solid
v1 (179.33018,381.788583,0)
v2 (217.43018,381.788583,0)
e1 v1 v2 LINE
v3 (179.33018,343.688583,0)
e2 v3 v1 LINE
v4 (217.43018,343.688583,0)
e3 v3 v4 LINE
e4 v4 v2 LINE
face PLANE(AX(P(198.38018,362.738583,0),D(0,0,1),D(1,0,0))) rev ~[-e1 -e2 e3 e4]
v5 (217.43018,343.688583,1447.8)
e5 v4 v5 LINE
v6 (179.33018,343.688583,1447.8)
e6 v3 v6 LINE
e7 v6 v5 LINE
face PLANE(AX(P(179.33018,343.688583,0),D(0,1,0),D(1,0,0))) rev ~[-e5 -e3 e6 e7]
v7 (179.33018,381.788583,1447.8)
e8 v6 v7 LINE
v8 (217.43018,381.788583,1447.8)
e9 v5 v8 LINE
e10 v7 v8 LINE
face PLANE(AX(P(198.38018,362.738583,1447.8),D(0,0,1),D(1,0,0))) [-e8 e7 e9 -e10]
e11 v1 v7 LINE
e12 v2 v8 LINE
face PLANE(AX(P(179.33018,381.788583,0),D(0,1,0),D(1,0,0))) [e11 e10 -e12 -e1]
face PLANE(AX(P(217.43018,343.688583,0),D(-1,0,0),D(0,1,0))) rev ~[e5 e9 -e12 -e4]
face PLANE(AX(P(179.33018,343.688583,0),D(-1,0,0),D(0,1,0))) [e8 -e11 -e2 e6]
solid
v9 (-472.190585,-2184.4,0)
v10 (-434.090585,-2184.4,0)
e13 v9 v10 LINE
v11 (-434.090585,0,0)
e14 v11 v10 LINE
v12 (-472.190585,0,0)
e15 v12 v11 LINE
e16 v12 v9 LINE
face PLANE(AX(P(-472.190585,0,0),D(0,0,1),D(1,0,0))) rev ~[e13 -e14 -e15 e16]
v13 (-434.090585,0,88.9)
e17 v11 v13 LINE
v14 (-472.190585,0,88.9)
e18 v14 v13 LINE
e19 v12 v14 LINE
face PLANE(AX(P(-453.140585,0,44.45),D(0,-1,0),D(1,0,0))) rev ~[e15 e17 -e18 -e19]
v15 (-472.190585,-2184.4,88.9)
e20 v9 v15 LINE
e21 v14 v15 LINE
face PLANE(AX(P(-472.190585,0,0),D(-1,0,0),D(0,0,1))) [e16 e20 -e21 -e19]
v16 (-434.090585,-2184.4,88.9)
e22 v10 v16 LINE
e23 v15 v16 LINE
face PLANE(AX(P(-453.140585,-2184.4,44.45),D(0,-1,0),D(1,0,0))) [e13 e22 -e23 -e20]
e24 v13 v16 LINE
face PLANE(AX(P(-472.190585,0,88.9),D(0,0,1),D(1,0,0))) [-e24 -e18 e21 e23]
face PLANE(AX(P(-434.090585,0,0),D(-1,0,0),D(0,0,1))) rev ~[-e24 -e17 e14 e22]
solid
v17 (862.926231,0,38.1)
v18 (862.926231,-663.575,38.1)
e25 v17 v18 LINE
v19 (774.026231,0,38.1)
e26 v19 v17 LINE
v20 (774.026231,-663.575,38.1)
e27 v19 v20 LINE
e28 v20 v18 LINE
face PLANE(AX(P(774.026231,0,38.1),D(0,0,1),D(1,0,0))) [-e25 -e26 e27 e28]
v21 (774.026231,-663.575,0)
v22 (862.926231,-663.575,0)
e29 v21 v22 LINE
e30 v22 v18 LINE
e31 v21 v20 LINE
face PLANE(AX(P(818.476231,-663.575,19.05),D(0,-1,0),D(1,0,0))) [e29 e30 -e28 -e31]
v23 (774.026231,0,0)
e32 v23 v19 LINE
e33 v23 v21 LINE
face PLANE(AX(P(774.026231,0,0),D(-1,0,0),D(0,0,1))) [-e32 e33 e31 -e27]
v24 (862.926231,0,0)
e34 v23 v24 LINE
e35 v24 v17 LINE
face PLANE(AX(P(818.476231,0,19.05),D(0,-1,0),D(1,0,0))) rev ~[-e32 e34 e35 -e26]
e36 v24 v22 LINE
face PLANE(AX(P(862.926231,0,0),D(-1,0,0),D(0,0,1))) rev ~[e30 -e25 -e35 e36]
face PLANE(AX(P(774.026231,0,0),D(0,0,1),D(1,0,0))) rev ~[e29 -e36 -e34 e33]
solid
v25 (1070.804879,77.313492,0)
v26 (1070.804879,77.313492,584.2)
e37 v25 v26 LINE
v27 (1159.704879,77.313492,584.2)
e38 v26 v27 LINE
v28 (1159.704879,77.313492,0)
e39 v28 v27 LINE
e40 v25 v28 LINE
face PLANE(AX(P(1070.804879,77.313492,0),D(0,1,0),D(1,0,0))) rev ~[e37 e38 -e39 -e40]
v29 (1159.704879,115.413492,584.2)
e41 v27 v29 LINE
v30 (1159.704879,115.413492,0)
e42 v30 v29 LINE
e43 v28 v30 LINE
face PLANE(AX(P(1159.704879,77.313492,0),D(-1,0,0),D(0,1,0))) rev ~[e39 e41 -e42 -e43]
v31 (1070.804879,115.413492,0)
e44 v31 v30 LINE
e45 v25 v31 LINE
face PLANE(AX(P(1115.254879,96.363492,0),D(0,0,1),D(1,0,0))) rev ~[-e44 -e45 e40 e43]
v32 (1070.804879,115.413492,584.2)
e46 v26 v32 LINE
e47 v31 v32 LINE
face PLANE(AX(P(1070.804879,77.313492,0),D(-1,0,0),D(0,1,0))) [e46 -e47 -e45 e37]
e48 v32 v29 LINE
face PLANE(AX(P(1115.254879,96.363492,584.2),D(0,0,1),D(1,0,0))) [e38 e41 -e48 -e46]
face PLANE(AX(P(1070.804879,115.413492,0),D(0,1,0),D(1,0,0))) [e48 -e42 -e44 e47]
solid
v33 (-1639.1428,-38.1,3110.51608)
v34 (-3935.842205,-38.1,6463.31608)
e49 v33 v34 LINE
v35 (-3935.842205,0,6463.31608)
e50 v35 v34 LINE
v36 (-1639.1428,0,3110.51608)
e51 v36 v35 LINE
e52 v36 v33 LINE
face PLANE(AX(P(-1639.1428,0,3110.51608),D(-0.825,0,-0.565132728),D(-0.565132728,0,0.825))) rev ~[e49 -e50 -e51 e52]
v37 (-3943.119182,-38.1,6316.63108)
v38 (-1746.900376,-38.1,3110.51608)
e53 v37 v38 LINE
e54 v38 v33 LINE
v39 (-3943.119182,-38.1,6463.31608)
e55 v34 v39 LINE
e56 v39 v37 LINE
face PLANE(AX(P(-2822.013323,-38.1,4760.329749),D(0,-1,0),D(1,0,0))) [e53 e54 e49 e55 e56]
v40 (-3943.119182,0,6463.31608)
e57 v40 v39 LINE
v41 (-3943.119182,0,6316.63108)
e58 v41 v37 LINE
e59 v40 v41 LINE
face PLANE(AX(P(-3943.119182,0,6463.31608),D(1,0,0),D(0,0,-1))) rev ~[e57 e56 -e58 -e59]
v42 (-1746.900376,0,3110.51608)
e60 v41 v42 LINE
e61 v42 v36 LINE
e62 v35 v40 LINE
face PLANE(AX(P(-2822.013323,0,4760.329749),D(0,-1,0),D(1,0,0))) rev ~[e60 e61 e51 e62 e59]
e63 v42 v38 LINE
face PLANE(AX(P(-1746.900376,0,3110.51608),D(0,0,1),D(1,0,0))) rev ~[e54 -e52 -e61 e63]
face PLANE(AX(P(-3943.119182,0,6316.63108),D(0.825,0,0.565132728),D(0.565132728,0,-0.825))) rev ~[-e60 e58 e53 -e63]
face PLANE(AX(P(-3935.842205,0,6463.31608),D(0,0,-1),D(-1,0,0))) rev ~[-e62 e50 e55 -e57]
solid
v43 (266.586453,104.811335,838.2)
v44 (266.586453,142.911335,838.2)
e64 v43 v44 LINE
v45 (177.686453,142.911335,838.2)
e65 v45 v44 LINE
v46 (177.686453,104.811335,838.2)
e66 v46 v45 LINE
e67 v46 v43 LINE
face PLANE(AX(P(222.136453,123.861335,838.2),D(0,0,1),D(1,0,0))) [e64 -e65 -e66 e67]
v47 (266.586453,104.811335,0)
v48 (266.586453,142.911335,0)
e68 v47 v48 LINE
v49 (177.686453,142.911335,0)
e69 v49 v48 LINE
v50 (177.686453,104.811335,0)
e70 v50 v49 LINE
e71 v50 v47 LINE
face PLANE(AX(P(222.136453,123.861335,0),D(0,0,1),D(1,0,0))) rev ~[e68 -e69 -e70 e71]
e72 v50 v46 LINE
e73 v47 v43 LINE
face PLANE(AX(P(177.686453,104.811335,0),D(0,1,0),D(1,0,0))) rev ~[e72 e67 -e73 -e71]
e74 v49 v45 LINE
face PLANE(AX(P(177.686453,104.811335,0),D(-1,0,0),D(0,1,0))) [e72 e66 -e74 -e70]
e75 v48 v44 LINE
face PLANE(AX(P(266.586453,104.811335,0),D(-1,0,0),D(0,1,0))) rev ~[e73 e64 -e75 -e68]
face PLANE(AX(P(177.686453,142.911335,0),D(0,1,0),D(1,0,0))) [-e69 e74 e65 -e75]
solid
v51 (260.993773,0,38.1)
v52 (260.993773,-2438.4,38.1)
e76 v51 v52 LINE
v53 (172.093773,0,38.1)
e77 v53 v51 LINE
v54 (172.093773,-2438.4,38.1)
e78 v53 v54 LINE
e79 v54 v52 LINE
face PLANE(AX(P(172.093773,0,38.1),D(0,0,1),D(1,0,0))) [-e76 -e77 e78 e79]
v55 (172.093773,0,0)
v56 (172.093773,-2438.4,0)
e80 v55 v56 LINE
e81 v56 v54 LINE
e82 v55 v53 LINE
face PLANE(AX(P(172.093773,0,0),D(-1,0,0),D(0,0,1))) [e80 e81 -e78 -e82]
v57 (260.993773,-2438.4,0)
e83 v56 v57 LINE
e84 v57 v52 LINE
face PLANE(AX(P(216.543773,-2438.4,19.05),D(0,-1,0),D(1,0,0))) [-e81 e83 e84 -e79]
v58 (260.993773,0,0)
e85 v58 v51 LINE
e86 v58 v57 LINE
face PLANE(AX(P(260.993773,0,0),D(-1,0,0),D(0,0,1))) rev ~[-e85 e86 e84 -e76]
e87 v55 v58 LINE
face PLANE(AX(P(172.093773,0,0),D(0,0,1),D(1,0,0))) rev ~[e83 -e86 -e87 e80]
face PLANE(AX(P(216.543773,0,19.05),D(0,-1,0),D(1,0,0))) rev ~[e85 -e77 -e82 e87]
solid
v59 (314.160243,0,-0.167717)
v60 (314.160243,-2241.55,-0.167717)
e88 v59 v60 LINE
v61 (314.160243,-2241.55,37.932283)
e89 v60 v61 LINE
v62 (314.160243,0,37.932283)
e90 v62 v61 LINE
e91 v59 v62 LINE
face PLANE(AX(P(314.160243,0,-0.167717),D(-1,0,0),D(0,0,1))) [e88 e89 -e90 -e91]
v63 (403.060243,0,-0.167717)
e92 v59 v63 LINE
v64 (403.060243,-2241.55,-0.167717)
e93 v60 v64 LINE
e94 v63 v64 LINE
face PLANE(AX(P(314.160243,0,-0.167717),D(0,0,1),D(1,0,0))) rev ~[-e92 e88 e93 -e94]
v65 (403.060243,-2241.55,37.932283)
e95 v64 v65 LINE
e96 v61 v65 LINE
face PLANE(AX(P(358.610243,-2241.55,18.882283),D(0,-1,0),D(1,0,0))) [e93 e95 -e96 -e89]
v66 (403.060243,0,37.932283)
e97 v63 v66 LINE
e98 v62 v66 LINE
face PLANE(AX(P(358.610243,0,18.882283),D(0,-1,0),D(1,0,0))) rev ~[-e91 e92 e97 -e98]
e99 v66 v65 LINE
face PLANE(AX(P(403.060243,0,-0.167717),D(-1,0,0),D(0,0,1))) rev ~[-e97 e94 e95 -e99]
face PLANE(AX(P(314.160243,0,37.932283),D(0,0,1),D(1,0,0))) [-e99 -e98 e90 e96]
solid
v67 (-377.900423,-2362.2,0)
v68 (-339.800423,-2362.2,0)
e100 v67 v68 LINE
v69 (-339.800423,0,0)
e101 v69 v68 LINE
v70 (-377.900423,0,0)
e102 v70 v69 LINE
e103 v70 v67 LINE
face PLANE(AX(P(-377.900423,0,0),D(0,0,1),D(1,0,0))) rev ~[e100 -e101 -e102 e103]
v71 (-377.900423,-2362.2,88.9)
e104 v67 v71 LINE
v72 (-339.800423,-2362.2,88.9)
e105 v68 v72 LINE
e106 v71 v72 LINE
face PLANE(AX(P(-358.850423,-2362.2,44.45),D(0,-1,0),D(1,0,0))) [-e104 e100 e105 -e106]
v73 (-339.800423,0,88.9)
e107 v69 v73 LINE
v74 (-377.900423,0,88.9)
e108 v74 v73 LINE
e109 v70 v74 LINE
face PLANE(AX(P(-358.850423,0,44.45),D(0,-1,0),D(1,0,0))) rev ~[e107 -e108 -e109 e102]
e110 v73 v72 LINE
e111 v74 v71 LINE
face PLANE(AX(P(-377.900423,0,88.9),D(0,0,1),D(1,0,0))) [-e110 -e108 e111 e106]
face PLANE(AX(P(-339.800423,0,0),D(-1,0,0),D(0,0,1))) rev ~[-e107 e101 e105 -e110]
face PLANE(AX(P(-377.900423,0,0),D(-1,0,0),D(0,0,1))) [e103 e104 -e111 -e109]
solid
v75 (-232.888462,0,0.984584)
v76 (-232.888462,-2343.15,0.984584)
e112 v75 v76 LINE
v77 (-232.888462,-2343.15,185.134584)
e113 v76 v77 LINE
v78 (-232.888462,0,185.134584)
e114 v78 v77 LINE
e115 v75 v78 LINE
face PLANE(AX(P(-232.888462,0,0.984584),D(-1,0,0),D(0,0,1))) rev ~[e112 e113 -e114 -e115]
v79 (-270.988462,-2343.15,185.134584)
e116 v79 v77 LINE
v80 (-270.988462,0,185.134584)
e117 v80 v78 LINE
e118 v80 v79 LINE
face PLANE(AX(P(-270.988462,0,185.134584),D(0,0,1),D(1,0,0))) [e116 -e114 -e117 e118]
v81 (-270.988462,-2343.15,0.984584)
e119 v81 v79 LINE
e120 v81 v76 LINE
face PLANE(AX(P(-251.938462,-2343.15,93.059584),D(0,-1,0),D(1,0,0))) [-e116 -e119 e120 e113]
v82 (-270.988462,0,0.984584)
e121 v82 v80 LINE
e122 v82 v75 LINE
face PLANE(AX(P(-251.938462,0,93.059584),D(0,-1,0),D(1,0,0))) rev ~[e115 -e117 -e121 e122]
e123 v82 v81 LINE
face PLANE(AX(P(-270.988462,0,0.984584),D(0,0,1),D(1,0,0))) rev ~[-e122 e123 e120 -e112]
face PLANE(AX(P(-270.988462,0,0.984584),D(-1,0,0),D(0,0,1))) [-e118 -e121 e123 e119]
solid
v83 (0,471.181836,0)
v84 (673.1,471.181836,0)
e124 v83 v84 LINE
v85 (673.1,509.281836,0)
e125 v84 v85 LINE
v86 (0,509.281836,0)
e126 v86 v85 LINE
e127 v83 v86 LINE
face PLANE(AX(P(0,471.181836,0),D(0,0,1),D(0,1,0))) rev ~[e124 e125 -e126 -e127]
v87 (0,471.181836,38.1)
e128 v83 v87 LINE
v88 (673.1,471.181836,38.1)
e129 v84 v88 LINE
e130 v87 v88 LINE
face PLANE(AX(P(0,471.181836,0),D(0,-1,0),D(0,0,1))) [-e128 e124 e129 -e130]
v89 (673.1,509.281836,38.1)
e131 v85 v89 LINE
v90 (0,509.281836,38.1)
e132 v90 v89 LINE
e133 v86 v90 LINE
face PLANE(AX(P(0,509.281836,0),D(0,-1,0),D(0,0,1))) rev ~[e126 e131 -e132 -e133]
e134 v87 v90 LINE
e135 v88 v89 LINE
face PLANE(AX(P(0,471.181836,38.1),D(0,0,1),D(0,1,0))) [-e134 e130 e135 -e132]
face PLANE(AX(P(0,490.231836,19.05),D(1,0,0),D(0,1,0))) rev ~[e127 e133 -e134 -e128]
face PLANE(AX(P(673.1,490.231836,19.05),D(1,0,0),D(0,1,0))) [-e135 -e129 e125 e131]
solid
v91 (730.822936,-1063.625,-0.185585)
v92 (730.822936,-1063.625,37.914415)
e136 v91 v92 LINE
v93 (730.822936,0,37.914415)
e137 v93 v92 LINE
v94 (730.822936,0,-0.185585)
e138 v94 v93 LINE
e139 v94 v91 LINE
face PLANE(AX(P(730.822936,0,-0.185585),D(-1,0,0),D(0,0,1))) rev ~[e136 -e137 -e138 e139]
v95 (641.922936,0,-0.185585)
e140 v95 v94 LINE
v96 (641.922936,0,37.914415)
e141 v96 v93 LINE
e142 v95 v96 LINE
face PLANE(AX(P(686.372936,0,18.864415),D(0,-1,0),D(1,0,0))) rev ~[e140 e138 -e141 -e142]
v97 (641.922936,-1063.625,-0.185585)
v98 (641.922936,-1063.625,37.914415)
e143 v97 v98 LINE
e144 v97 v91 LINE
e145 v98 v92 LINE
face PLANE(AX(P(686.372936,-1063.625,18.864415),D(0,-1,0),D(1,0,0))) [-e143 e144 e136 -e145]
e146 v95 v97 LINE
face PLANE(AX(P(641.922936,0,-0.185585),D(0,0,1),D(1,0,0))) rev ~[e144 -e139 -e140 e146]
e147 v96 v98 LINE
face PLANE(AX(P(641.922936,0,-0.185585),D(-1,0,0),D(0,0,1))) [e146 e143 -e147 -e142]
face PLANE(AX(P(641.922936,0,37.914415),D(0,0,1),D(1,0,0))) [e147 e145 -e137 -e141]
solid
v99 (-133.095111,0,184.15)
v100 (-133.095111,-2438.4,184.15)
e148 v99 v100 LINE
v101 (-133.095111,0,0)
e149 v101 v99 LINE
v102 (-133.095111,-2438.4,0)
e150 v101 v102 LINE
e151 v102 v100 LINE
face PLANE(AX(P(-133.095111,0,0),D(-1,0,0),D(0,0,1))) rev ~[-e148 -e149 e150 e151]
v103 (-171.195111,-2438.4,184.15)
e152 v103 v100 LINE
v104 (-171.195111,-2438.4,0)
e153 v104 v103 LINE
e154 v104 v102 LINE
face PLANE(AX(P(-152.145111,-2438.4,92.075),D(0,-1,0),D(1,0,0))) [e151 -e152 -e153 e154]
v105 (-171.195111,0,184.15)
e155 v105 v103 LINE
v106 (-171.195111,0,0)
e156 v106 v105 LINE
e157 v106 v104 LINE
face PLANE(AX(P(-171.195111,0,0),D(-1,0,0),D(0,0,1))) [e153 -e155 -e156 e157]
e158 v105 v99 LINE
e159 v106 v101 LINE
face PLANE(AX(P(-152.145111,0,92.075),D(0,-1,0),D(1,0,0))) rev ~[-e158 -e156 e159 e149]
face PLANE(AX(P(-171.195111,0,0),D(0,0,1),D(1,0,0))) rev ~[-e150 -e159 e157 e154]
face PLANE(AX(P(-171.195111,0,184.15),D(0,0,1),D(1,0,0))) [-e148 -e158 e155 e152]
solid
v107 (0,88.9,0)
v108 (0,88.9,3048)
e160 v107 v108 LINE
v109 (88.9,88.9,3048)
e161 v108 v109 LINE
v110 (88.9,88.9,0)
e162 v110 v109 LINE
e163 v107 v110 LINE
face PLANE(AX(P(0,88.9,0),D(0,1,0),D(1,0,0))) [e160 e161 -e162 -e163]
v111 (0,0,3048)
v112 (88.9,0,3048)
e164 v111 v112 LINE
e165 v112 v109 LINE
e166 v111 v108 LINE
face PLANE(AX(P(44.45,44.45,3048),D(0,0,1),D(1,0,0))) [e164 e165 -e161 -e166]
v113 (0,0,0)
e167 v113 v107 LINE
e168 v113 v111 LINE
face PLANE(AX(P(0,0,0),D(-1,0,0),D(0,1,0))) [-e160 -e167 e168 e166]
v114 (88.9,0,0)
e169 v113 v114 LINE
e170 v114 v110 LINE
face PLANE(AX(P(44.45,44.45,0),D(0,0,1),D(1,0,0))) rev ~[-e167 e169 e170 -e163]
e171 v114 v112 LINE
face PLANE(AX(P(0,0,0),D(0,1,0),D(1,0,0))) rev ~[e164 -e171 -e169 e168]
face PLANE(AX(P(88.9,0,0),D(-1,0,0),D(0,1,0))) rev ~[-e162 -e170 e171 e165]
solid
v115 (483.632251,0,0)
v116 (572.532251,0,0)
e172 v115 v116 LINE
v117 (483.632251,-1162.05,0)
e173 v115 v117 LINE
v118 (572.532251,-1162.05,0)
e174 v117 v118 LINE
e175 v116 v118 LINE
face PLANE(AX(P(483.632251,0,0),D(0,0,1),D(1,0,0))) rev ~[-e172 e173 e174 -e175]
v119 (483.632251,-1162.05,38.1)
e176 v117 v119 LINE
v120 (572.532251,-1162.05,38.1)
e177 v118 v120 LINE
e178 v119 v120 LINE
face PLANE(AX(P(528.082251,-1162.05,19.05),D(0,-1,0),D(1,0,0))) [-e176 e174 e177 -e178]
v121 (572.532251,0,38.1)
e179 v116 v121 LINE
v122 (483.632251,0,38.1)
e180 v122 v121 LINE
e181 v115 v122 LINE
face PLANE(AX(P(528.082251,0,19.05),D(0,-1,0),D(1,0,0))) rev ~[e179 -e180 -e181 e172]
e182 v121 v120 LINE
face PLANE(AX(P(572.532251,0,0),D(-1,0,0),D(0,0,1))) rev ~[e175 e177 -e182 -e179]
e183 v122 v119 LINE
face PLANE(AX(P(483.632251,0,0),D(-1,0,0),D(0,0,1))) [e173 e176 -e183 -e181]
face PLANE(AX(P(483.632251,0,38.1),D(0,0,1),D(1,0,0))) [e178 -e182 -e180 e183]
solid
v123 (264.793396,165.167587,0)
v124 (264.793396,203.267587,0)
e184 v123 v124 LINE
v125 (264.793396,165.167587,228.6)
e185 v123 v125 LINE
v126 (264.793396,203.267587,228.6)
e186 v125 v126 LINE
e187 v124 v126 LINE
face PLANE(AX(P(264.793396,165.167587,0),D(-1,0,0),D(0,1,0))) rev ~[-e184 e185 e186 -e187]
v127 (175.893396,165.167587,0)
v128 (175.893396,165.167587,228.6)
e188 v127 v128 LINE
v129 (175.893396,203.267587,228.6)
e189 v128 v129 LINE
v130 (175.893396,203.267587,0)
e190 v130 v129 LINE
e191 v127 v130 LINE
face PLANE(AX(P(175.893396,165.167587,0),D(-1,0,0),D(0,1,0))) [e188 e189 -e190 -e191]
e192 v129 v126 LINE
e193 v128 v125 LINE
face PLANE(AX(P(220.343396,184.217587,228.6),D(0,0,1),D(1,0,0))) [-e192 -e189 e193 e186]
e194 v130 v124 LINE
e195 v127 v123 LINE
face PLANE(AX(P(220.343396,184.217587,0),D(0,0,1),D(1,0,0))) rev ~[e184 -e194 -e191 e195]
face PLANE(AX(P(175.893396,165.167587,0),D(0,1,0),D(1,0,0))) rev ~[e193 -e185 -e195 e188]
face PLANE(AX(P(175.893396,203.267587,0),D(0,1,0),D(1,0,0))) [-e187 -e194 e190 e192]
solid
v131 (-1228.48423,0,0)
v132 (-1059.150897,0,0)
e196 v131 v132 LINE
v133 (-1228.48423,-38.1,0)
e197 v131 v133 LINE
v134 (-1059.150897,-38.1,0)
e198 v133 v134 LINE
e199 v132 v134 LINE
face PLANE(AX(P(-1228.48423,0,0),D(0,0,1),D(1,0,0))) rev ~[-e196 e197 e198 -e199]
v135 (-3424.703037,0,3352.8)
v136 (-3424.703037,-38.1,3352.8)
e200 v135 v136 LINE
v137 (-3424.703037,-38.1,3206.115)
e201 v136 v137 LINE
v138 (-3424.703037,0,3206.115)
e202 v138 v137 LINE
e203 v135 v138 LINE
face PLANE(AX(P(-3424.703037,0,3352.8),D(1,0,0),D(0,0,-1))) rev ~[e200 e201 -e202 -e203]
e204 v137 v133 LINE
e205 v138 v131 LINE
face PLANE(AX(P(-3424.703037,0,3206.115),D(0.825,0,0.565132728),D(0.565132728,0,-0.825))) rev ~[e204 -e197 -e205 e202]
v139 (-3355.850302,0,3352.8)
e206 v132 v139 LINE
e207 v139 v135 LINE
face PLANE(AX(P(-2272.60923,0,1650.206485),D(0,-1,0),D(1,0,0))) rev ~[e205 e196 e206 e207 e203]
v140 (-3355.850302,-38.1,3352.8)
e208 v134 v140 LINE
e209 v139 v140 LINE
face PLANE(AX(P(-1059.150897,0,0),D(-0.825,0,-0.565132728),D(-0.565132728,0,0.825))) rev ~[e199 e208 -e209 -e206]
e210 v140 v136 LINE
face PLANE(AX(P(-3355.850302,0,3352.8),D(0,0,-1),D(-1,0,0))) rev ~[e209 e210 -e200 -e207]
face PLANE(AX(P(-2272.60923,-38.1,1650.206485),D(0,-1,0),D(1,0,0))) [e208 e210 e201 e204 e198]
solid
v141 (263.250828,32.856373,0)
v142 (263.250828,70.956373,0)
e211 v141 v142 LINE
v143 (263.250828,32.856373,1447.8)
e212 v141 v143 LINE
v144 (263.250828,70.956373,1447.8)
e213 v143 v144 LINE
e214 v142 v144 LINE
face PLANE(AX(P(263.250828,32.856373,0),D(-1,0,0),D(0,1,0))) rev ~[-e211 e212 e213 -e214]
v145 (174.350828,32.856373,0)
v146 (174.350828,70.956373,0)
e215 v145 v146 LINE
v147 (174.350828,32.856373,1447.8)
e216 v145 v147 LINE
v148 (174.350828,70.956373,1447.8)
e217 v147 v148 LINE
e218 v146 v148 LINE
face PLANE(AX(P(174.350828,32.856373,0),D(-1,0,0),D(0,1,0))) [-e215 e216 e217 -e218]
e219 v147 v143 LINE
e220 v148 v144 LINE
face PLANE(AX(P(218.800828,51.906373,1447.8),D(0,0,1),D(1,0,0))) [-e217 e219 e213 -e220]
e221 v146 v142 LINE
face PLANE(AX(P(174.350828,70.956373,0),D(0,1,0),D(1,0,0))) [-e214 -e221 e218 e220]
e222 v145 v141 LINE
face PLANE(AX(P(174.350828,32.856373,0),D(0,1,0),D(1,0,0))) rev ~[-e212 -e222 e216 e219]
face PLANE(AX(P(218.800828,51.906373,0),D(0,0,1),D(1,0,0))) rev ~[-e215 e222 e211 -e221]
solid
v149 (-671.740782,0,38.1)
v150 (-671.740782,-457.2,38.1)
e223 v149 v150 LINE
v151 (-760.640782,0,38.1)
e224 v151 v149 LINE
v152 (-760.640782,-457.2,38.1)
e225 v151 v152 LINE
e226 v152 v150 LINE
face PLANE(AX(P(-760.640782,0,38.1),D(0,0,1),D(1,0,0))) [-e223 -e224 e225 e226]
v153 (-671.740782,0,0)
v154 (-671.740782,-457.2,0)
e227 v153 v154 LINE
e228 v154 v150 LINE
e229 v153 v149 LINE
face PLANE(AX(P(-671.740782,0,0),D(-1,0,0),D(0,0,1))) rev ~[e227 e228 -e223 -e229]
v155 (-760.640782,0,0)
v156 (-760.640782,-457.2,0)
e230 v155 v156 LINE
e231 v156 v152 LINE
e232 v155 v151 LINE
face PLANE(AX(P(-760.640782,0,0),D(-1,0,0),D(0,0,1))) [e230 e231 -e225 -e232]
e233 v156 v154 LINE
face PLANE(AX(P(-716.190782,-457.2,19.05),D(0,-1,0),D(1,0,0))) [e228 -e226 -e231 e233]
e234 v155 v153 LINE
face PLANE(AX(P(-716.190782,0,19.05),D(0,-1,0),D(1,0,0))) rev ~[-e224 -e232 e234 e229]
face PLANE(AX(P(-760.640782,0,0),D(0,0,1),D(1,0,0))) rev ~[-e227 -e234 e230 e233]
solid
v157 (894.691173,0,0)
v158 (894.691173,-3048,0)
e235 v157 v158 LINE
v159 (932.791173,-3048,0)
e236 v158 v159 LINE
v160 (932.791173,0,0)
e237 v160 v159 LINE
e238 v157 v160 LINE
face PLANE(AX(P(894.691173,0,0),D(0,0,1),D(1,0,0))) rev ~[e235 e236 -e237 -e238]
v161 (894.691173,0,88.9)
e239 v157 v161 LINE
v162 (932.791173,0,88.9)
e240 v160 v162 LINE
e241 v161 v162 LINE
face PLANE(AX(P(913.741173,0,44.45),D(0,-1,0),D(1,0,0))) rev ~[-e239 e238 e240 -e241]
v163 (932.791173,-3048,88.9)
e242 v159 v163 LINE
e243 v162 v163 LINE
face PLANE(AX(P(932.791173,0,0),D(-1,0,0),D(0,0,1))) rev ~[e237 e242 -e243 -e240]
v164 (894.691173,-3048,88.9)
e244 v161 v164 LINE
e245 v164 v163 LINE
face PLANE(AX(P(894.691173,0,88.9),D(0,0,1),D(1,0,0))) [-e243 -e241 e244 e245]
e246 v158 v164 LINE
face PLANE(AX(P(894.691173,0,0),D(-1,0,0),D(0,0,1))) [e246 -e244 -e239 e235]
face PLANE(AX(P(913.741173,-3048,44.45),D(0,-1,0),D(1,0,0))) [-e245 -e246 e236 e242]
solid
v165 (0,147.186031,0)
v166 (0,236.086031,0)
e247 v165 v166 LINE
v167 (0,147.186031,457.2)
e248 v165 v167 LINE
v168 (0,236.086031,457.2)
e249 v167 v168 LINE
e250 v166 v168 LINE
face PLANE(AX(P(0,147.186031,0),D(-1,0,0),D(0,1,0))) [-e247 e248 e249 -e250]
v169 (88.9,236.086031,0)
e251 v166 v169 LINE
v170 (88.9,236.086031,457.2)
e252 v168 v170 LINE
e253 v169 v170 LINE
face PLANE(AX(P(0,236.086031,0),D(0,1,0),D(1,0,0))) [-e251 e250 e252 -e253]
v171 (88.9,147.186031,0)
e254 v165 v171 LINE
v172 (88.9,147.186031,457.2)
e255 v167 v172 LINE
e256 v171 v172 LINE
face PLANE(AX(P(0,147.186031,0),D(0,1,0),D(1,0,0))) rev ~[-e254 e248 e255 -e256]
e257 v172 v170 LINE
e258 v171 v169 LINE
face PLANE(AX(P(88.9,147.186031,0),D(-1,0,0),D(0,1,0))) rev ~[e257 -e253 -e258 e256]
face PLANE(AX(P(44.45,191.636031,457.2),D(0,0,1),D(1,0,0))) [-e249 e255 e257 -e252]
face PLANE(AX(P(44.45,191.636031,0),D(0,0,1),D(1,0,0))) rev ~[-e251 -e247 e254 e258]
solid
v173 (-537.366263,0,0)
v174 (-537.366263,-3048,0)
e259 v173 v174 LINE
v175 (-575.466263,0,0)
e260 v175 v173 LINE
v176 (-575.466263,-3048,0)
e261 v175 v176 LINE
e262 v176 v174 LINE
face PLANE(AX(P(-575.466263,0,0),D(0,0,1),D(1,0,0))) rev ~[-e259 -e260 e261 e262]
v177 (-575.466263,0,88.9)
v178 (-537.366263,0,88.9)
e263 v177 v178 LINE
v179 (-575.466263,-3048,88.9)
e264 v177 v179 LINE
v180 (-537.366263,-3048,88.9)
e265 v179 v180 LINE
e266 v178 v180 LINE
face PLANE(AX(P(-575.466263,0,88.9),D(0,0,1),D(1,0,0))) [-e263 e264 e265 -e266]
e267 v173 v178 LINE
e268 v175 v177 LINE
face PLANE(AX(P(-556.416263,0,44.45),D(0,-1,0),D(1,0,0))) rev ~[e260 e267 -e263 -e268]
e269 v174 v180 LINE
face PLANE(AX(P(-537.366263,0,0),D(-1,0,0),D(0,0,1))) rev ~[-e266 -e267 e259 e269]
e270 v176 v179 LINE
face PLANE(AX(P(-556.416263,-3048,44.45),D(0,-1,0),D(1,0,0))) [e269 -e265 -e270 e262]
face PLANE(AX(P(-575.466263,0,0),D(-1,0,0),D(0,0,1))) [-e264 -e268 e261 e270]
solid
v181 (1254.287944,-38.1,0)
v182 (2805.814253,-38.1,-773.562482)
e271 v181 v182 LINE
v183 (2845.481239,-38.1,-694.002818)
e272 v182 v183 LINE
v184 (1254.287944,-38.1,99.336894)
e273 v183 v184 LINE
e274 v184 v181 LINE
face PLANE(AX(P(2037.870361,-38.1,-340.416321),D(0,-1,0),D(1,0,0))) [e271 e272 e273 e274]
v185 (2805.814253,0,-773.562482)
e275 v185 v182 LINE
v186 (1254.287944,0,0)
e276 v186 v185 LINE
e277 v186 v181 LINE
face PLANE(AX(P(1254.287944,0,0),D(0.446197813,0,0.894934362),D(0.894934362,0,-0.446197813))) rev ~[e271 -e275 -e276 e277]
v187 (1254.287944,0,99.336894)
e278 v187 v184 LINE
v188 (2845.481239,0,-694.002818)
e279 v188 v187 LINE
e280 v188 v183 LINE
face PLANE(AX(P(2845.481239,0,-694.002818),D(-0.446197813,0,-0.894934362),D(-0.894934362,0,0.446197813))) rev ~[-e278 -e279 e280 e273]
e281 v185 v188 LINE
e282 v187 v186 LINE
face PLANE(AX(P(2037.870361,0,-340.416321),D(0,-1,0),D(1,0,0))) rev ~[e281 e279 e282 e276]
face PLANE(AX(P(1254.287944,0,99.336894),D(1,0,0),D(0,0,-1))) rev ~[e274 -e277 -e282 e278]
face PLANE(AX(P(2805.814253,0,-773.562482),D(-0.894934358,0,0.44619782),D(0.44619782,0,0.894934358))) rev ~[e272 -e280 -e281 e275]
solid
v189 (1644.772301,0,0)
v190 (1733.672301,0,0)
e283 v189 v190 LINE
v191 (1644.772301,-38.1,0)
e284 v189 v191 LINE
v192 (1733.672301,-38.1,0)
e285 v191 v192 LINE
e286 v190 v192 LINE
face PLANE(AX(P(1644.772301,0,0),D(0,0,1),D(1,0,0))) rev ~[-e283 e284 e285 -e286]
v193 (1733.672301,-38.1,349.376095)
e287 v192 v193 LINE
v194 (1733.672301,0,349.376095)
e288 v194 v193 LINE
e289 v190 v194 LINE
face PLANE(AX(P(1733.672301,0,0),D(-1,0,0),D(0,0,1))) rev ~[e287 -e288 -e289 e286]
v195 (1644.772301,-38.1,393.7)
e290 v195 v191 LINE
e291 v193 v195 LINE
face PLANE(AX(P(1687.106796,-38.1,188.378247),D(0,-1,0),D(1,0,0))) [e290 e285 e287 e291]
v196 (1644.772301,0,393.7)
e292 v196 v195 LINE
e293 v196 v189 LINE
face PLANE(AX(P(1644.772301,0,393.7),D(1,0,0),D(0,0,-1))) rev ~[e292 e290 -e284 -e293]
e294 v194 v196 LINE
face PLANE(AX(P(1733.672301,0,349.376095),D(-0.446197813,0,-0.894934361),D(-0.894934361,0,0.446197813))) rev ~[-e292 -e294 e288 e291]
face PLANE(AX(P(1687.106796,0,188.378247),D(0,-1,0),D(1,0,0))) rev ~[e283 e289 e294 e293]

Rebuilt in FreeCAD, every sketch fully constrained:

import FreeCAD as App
import Part
import Sketcher
from FreeCAD import Vector
Q = App.Units.Quantity


def add_polygon(sketch, points):
    """Adds a closed chain of lines whose ends are joined by coincident constraints."""
    first, n = sketch.GeometryCount, len(points)
    for a, b in zip(points, points[1:] + points[:1]):
        sketch.addGeometry(Part.LineSegment(App.Vector(*a, 0), App.Vector(*b, 0)), False)
    for i in range(n):
        sketch.addConstraint(Sketcher.Constraint("Coincident", first + i, 2, first + (i + 1) % n, 1))

doc = App.newDocument("Part")
body = doc.addObject("PartDesign::Body", "Body")

# Sketch on XY plane
sketch1 = body.newObject("Sketcher::SketchObject", "Sketch")
sketch1.AttachmentSupport = (doc.getObject("XY_Plane"), [""])
sketch1.MapMode = "FlatFace"
add_polygon(sketch1, [(0, 88.9), (0, 0), (88.9, 0), (88.9, 88.9)])  # lines 0-3
sketch1.addConstraint(Sketcher.Constraint("Vertical", 0))
sketch1.addConstraint(Sketcher.Constraint("Horizontal", 1))
sketch1.addConstraint(Sketcher.Constraint("Vertical", 2))
sketch1.addConstraint(Sketcher.Constraint("Horizontal", 3))
sketch1.addConstraint(Sketcher.Constraint("Coincident", 0, 2, -1, 1))
sketch1.addConstraint(Sketcher.Constraint("Equal", 3, 0))
sketch1.addConstraint(Sketcher.Constraint("DistanceX", 1, 1, 1, 2, Q("3.5 in")))
pad1 = body.newObject("PartDesign::Pad", "Pad")
pad1.Profile = sketch1
pad1.Length = Q("120 in")
body2 = doc.addObject("PartDesign::Body", "Body001")

# Sketch on XZ plane
sketch2 = body2.newObject("Sketcher::SketchObject", "Sketch001")
sketch2.AttachmentSupport = (doc.getObject("XZ_Plane001"), [""])
sketch2.MapMode = "FlatFace"
add_polygon(sketch2, [(-171.195111, 184.15), (-171.195111, 0), (-133.095111, 0), (-133.095111, 184.15)])  # lines 0-3
sketch2.addConstraint(Sketcher.Constraint("Vertical", 0))
sketch2.addConstraint(Sketcher.Constraint("Horizontal", 1))
sketch2.addConstraint(Sketcher.Constraint("Vertical", 2))
sketch2.addConstraint(Sketcher.Constraint("Horizontal", 3))
sketch2.addConstraint(Sketcher.Constraint("PointOnObject", 0, 2, -1))
sketch2.addConstraint(Sketcher.Constraint("DistanceX", 1, 1, 1, 2, Q("1.5 in")))
sketch2.addConstraint(Sketcher.Constraint("DistanceY", 0, 2, 0, 1, Q("7.25 in")))
sketch2.addConstraint(Sketcher.Constraint("DistanceX", 0, 2, -1, 1, 171.195111))
pad2 = body2.newObject("PartDesign::Pad", "Pad001")
pad2.Profile = sketch2
pad2.Length = Q("96 in")
body3 = doc.addObject("PartDesign::Body", "Body002")

# Sketch on XZ plane
sketch3 = body3.newObject("Sketcher::SketchObject", "Sketch002")
sketch3.AttachmentSupport = (doc.getObject("XZ_Plane002"), [""])
sketch3.MapMode = "FlatFace"
add_polygon(sketch3, [(-270.988462, 185.134584), (-270.988462, 0.984584), (-232.888462, 0.984584), (-232.888462, 185.134584)])  # lines 0-3
sketch3.addConstraint(Sketcher.Constraint("Vertical", 0))
sketch3.addConstraint(Sketcher.Constraint("Horizontal", 1))
sketch3.addConstraint(Sketcher.Constraint("Vertical", 2))
sketch3.addConstraint(Sketcher.Constraint("Horizontal", 3))
sketch3.addConstraint(Sketcher.Constraint("DistanceX", 1, 1, 1, 2, Q("1.5 in")))
sketch3.addConstraint(Sketcher.Constraint("DistanceY", 0, 2, 0, 1, Q("7.25 in")))
sketch3.addConstraint(Sketcher.Constraint("DistanceX", 1, 2, -1, 1, 232.888462))
sketch3.addConstraint(Sketcher.Constraint("DistanceY", -1, 1, 0, 2, 0.984584))
pad3 = body3.newObject("PartDesign::Pad", "Pad002")
pad3.Profile = sketch3
pad3.Length = Q("92.25 in")
body4 = doc.addObject("PartDesign::Body", "Body003")

# Sketch on XZ plane
sketch4 = body4.newObject("Sketcher::SketchObject", "Sketch003")
sketch4.AttachmentSupport = (doc.getObject("XZ_Plane003"), [""])
sketch4.MapMode = "FlatFace"
add_polygon(sketch4, [(-377.900423, 88.9), (-377.900423, 0), (-339.800423, 0), (-339.800423, 88.9)])  # lines 0-3
sketch4.addConstraint(Sketcher.Constraint("Vertical", 0))
sketch4.addConstraint(Sketcher.Constraint("Horizontal", 1))
sketch4.addConstraint(Sketcher.Constraint("Vertical", 2))
sketch4.addConstraint(Sketcher.Constraint("Horizontal", 3))
sketch4.addConstraint(Sketcher.Constraint("PointOnObject", 0, 2, -1))
sketch4.addConstraint(Sketcher.Constraint("DistanceX", 1, 1, 1, 2, Q("1.5 in")))
sketch4.addConstraint(Sketcher.Constraint("DistanceY", 0, 2, 0, 1, Q("3.5 in")))
sketch4.addConstraint(Sketcher.Constraint("DistanceX", 0, 2, -1, 1, 377.900423))
pad4 = body4.newObject("PartDesign::Pad", "Pad003")
pad4.Profile = sketch4
pad4.Length = Q("93 in")
body5 = doc.addObject("PartDesign::Body", "Body004")

# Sketch on XZ plane
sketch5 = body5.newObject("Sketcher::SketchObject", "Sketch004")
sketch5.AttachmentSupport = (doc.getObject("XZ_Plane004"), [""])
sketch5.MapMode = "FlatFace"
add_polygon(sketch5, [(-472.190585, 88.9), (-472.190585, 0), (-434.090585, 0), (-434.090585, 88.9)])  # lines 0-3
sketch5.addConstraint(Sketcher.Constraint("Vertical", 0))
sketch5.addConstraint(Sketcher.Constraint("Horizontal", 1))
sketch5.addConstraint(Sketcher.Constraint("Vertical", 2))
sketch5.addConstraint(Sketcher.Constraint("Horizontal", 3))
sketch5.addConstraint(Sketcher.Constraint("PointOnObject", 0, 2, -1))
sketch5.addConstraint(Sketcher.Constraint("DistanceX", 1, 1, 1, 2, Q("1.5 in")))
sketch5.addConstraint(Sketcher.Constraint("DistanceY", 0, 2, 0, 1, Q("3.5 in")))
sketch5.addConstraint(Sketcher.Constraint("DistanceX", 0, 2, -1, 1, 472.190585))
pad5 = body5.newObject("PartDesign::Pad", "Pad004")
pad5.Profile = sketch5
pad5.Length = Q("86 in")
body6 = doc.addObject("PartDesign::Body", "Body005")

# Sketch on XZ plane
sketch6 = body6.newObject("Sketcher::SketchObject", "Sketch005")
sketch6.AttachmentSupport = (doc.getObject("XZ_Plane005"), [""])
sketch6.MapMode = "FlatFace"
add_polygon(sketch6, [(-575.466263, 88.9), (-575.466263, 0), (-537.366263, 0), (-537.366263, 88.9)])  # lines 0-3
sketch6.addConstraint(Sketcher.Constraint("Vertical", 0))
sketch6.addConstraint(Sketcher.Constraint("Horizontal", 1))
sketch6.addConstraint(Sketcher.Constraint("Vertical", 2))
sketch6.addConstraint(Sketcher.Constraint("Horizontal", 3))
sketch6.addConstraint(Sketcher.Constraint("PointOnObject", 0, 2, -1))
sketch6.addConstraint(Sketcher.Constraint("DistanceX", 1, 1, 1, 2, Q("1.5 in")))
sketch6.addConstraint(Sketcher.Constraint("DistanceY", 0, 2, 0, 1, Q("3.5 in")))
sketch6.addConstraint(Sketcher.Constraint("DistanceX", 0, 2, -1, 1, 575.466263))
pad6 = body6.newObject("PartDesign::Pad", "Pad005")
pad6.Profile = sketch6
pad6.Length = Q("120 in")
body7 = doc.addObject("PartDesign::Body", "Body006")

# Sketch on XZ plane
sketch7 = body7.newObject("Sketcher::SketchObject", "Sketch006")
sketch7.AttachmentSupport = (doc.getObject("XZ_Plane006"), [""])
sketch7.MapMode = "FlatFace"
add_polygon(sketch7, [(172.093773, 38.1), (172.093773, 0), (260.993773, 0), (260.993773, 38.1)])  # lines 0-3
sketch7.addConstraint(Sketcher.Constraint("Vertical", 0))
sketch7.addConstraint(Sketcher.Constraint("Horizontal", 1))
sketch7.addConstraint(Sketcher.Constraint("Vertical", 2))
sketch7.addConstraint(Sketcher.Constraint("Horizontal", 3))
sketch7.addConstraint(Sketcher.Constraint("PointOnObject", 0, 2, -1))
sketch7.addConstraint(Sketcher.Constraint("DistanceX", 1, 1, 1, 2, Q("3.5 in")))
sketch7.addConstraint(Sketcher.Constraint("DistanceY", 0, 2, 0, 1, Q("1.5 in")))
sketch7.addConstraint(Sketcher.Constraint("DistanceX", -1, 1, 0, 2, 172.093773))
pad7 = body7.newObject("PartDesign::Pad", "Pad006")
pad7.Profile = sketch7
pad7.Length = Q("96 in")
body8 = doc.addObject("PartDesign::Body", "Body007")

# Sketch on XY plane
sketch8 = body8.newObject("Sketcher::SketchObject", "Sketch007")
sketch8.AttachmentSupport = (doc.getObject("XY_Plane007"), [""])
sketch8.MapMode = "FlatFace"
add_polygon(sketch8, [(174.350828, 70.956373), (174.350828, 32.856373), (263.250828, 32.856373), (263.250828, 70.956373)])  # lines 0-3
sketch8.addConstraint(Sketcher.Constraint("Vertical", 0))
sketch8.addConstraint(Sketcher.Constraint("Horizontal", 1))
sketch8.addConstraint(Sketcher.Constraint("Vertical", 2))
sketch8.addConstraint(Sketcher.Constraint("Horizontal", 3))
sketch8.addConstraint(Sketcher.Constraint("DistanceX", 1, 1, 1, 2, Q("3.5 in")))
sketch8.addConstraint(Sketcher.Constraint("DistanceY", 0, 2, 0, 1, Q("1.5 in")))
sketch8.addConstraint(Sketcher.Constraint("DistanceX", -1, 1, 0, 2, 174.350828))
sketch8.addConstraint(Sketcher.Constraint("DistanceY", -1, 1, 0, 2, 32.856373))
pad8 = body8.newObject("PartDesign::Pad", "Pad007")
pad8.Profile = sketch8
pad8.Length = Q("57 in")
body9 = doc.addObject("PartDesign::Body", "Body008")

# Sketch on XZ plane
sketch9 = body9.newObject("Sketcher::SketchObject", "Sketch008")
sketch9.AttachmentSupport = (doc.getObject("XZ_Plane008"), [""])
sketch9.MapMode = "FlatFace"
add_polygon(sketch9, [(314.160243, 37.932283), (314.160243, -0.167717), (403.060243, -0.167717), (403.060243, 37.932283)])  # lines 0-3
sketch9.addConstraint(Sketcher.Constraint("Vertical", 0))
sketch9.addConstraint(Sketcher.Constraint("Horizontal", 1))
sketch9.addConstraint(Sketcher.Constraint("Vertical", 2))
sketch9.addConstraint(Sketcher.Constraint("Horizontal", 3))
sketch9.addConstraint(Sketcher.Constraint("DistanceX", 1, 1, 1, 2, Q("3.5 in")))
sketch9.addConstraint(Sketcher.Constraint("DistanceY", 0, 2, 0, 1, Q("1.5 in")))
sketch9.addConstraint(Sketcher.Constraint("DistanceX", -1, 1, 0, 2, 314.160243))
sketch9.addConstraint(Sketcher.Constraint("DistanceY", 0, 2, -1, 1, 0.167717))
pad9 = body9.newObject("PartDesign::Pad", "Pad008")
pad9.Profile = sketch9
pad9.Length = Q("88.25 in")
body10 = doc.addObject("PartDesign::Body", "Body009")

# Sketch on XZ plane
sketch10 = body10.newObject("Sketcher::SketchObject", "Sketch009")
sketch10.AttachmentSupport = (doc.getObject("XZ_Plane009"), [""])
sketch10.MapMode = "FlatFace"
add_polygon(sketch10, [(483.632251, 38.1), (483.632251, 0), (572.532251, 0), (572.532251, 38.1)])  # lines 0-3
sketch10.addConstraint(Sketcher.Constraint("Vertical", 0))
sketch10.addConstraint(Sketcher.Constraint("Horizontal", 1))
sketch10.addConstraint(Sketcher.Constraint("Vertical", 2))
sketch10.addConstraint(Sketcher.Constraint("Horizontal", 3))
sketch10.addConstraint(Sketcher.Constraint("PointOnObject", 0, 2, -1))
sketch10.addConstraint(Sketcher.Constraint("DistanceX", 1, 1, 1, 2, Q("3.5 in")))
sketch10.addConstraint(Sketcher.Constraint("DistanceY", 0, 2, 0, 1, Q("1.5 in")))
sketch10.addConstraint(Sketcher.Constraint("DistanceX", -1, 1, 0, 2, 483.632251))
pad10 = body10.newObject("PartDesign::Pad", "Pad009")
pad10.Profile = sketch10
pad10.Length = Q("45.75 in")
body11 = doc.addObject("PartDesign::Body", "Body010")

# Sketch on XZ plane
sketch11 = body11.newObject("Sketcher::SketchObject", "Sketch010")
sketch11.AttachmentSupport = (doc.getObject("XZ_Plane010"), [""])
sketch11.MapMode = "FlatFace"
add_polygon(sketch11, [(641.922936, 37.914415), (641.922936, -0.185585), (730.822936, -0.185585), (730.822936, 37.914415)])  # lines 0-3
sketch11.addConstraint(Sketcher.Constraint("Vertical", 0))
sketch11.addConstraint(Sketcher.Constraint("Horizontal", 1))
sketch11.addConstraint(Sketcher.Constraint("Vertical", 2))
sketch11.addConstraint(Sketcher.Constraint("Horizontal", 3))
sketch11.addConstraint(Sketcher.Constraint("DistanceX", 1, 1, 1, 2, Q("3.5 in")))
sketch11.addConstraint(Sketcher.Constraint("DistanceY", 0, 2, 0, 1, Q("1.5 in")))
sketch11.addConstraint(Sketcher.Constraint("DistanceX", -1, 1, 0, 2, 641.922936))
sketch11.addConstraint(Sketcher.Constraint("DistanceY", 0, 2, -1, 1, 0.185585))
pad11 = body11.newObject("PartDesign::Pad", "Pad010")
pad11.Profile = sketch11
pad11.Length = Q("41.875 in")
body12 = doc.addObject("PartDesign::Body", "Body011")

# Sketch on XY plane
sketch12 = body12.newObject("Sketcher::SketchObject", "Sketch011")
sketch12.AttachmentSupport = (doc.getObject("XY_Plane011"), [""])
sketch12.MapMode = "FlatFace"
add_polygon(sketch12, [(177.686453, 142.911335), (177.686453, 104.811335), (266.586453, 104.811335), (266.586453, 142.911335)])  # lines 0-3
sketch12.addConstraint(Sketcher.Constraint("Vertical", 0))
sketch12.addConstraint(Sketcher.Constraint("Horizontal", 1))
sketch12.addConstraint(Sketcher.Constraint("Vertical", 2))
sketch12.addConstraint(Sketcher.Constraint("Horizontal", 3))
sketch12.addConstraint(Sketcher.Constraint("DistanceX", 1, 1, 1, 2, Q("3.5 in")))
sketch12.addConstraint(Sketcher.Constraint("DistanceY", 0, 2, 0, 1, Q("1.5 in")))
sketch12.addConstraint(Sketcher.Constraint("DistanceX", -1, 1, 0, 2, 177.686453))
sketch12.addConstraint(Sketcher.Constraint("DistanceY", -1, 1, 0, 2, 104.811335))
pad12 = body12.newObject("PartDesign::Pad", "Pad011")
pad12.Profile = sketch12
pad12.Length = Q("33 in")
body13 = doc.addObject("PartDesign::Body", "Body012")

# Sketch on XY plane
sketch13 = body13.newObject("Sketcher::SketchObject", "Sketch012")
sketch13.AttachmentSupport = (doc.getObject("XY_Plane012"), [""])
sketch13.MapMode = "FlatFace"
add_polygon(sketch13, [(175.893396, 203.267587), (175.893396, 165.167587), (264.793396, 165.167587), (264.793396, 203.267587)])  # lines 0-3
sketch13.addConstraint(Sketcher.Constraint("Vertical", 0))
sketch13.addConstraint(Sketcher.Constraint("Horizontal", 1))
sketch13.addConstraint(Sketcher.Constraint("Vertical", 2))
sketch13.addConstraint(Sketcher.Constraint("Horizontal", 3))
sketch13.addConstraint(Sketcher.Constraint("DistanceX", 1, 1, 1, 2, Q("3.5 in")))
sketch13.addConstraint(Sketcher.Constraint("DistanceY", 0, 2, 0, 1, Q("1.5 in")))
sketch13.addConstraint(Sketcher.Constraint("DistanceX", -1, 1, 0, 2, 175.893396))
sketch13.addConstraint(Sketcher.Constraint("DistanceY", -1, 1, 0, 2, 165.167587))
pad13 = body13.newObject("PartDesign::Pad", "Pad012")
pad13.Profile = sketch13
pad13.Length = Q("9 in")
body14 = doc.addObject("PartDesign::Body", "Body013")

# Sketch on XZ plane
sketch14 = body14.newObject("Sketcher::SketchObject", "Sketch013")
sketch14.AttachmentSupport = (doc.getObject("XZ_Plane013"), [""])
sketch14.MapMode = "FlatFace"
add_polygon(sketch14, [(894.691173, 88.9), (894.691173, 0), (932.791173, 0), (932.791173, 88.9)])  # lines 0-3
sketch14.addConstraint(Sketcher.Constraint("Vertical", 0))
sketch14.addConstraint(Sketcher.Constraint("Horizontal", 1))
sketch14.addConstraint(Sketcher.Constraint("Vertical", 2))
sketch14.addConstraint(Sketcher.Constraint("Horizontal", 3))
sketch14.addConstraint(Sketcher.Constraint("PointOnObject", 0, 2, -1))
sketch14.addConstraint(Sketcher.Constraint("DistanceX", 1, 1, 1, 2, Q("1.5 in")))
sketch14.addConstraint(Sketcher.Constraint("DistanceY", 0, 2, 0, 1, Q("3.5 in")))
sketch14.addConstraint(Sketcher.Constraint("DistanceX", -1, 1, 0, 2, 894.691173))
pad14 = body14.newObject("PartDesign::Pad", "Pad013")
pad14.Profile = sketch14
pad14.Length = Q("120 in")
body15 = doc.addObject("PartDesign::Body", "Body014")

# Sketch on XZ plane
sketch15 = body15.newObject("Sketcher::SketchObject", "Sketch014")
sketch15.AttachmentSupport = (doc.getObject("XZ_Plane014"), [""])
sketch15.MapMode = "FlatFace"
add_polygon(sketch15, [(1254.287944, 99.336894), (1254.287944, 0), (2805.814253, -773.562482), (2845.481239, -694.002818)])  # lines 0-3
sketch15.addConstraint(Sketcher.Constraint("Vertical", 0))
sketch15.addConstraint(Sketcher.Constraint("PointOnObject", 0, 2, -1))
sketch15.addConstraint(Sketcher.Constraint("Perpendicular", 1, 2))
sketch15.addConstraint(Sketcher.Constraint("Perpendicular", 2, 3))
sketch15.addConstraint(Sketcher.Constraint("Distance", 3, Q("70 in")))
sketch15.addConstraint(Sketcher.Constraint("Distance", 2, Q("3.5 in")))
sketch15.addConstraint(Sketcher.Constraint("Angle", 1, Q("-26.5 deg")))
sketch15.addConstraint(Sketcher.Constraint("DistanceX", -1, 1, 2, 2, 2845.481239))
pad15 = body15.newObject("PartDesign::Pad", "Pad014")
pad15.Profile = sketch15
pad15.Length = Q("1.5 in")
body16 = doc.addObject("PartDesign::Body", "Body015")

# Sketch on XY plane
sketch16 = body16.newObject("Sketcher::SketchObject", "Sketch015")
sketch16.AttachmentSupport = (doc.getObject("XY_Plane015"), [""])
sketch16.MapMode = "FlatFace"
add_polygon(sketch16, [(1070.804879, 115.413492), (1070.804879, 77.313492), (1159.704879, 77.313492), (1159.704879, 115.413492)])  # lines 0-3
sketch16.addConstraint(Sketcher.Constraint("Vertical", 0))
sketch16.addConstraint(Sketcher.Constraint("Horizontal", 1))
sketch16.addConstraint(Sketcher.Constraint("Vertical", 2))
sketch16.addConstraint(Sketcher.Constraint("Horizontal", 3))
sketch16.addConstraint(Sketcher.Constraint("DistanceX", 1, 1, 1, 2, Q("3.5 in")))
sketch16.addConstraint(Sketcher.Constraint("DistanceY", 0, 2, 0, 1, Q("1.5 in")))
sketch16.addConstraint(Sketcher.Constraint("DistanceX", -1, 1, 0, 2, 1070.804879))
sketch16.addConstraint(Sketcher.Constraint("DistanceY", -1, 1, 0, 2, 77.313492))
pad16 = body16.newObject("PartDesign::Pad", "Pad015")
pad16.Profile = sketch16
pad16.Length = Q("23 in")
body17 = doc.addObject("PartDesign::Body", "Body016")

# Sketch on XZ plane
sketch17 = body17.newObject("Sketcher::SketchObject", "Sketch016")
sketch17.AttachmentSupport = (doc.getObject("XZ_Plane016"), [""])
sketch17.MapMode = "FlatFace"
add_polygon(sketch17, [(1644.772301, 393.7), (1644.772301, 0), (1733.672301, 0), (1733.672301, 349.376095)])  # lines 0-3
sketch17.addConstraint(Sketcher.Constraint("Vertical", 0))
sketch17.addConstraint(Sketcher.Constraint("Horizontal", 1))
sketch17.addConstraint(Sketcher.Constraint("Vertical", 2))
sketch17.addConstraint(Sketcher.Constraint("PointOnObject", 0, 2, -1))
sketch17.addConstraint(Sketcher.Constraint("DistanceX", 1, 1, 1, 2, Q("3.5 in")))
sketch17.addConstraint(Sketcher.Constraint("DistanceY", 0, 2, 0, 1, Q("15.5 in")))
sketch17.addConstraint(Sketcher.Constraint("Angle", 3, Q("153.5 deg")))
sketch17.addConstraint(Sketcher.Constraint("DistanceX", -1, 1, 0, 2, 1644.772301))
pad17 = body17.newObject("PartDesign::Pad", "Pad016")
pad17.Profile = sketch17
pad17.Length = Q("1.5 in")
body18 = doc.addObject("PartDesign::Body", "Body017")

# Sketch on XY plane
sketch18 = body18.newObject("Sketcher::SketchObject", "Sketch017")
sketch18.AttachmentSupport = (doc.getObject("XY_Plane017"), [""])
sketch18.MapMode = "FlatFace"
add_polygon(sketch18, [(179.33018, 381.788583), (179.33018, 343.688583), (217.43018, 343.688583), (217.43018, 381.788583)])  # lines 0-3
sketch18.addConstraint(Sketcher.Constraint("Vertical", 0))
sketch18.addConstraint(Sketcher.Constraint("Horizontal", 1))
sketch18.addConstraint(Sketcher.Constraint("Vertical", 2))
sketch18.addConstraint(Sketcher.Constraint("Horizontal", 3))
sketch18.addConstraint(Sketcher.Constraint("Equal", 3, 0))
sketch18.addConstraint(Sketcher.Constraint("DistanceX", 1, 1, 1, 2, Q("1.5 in")))
sketch18.addConstraint(Sketcher.Constraint("DistanceX", -1, 1, 0, 2, 179.33018))
sketch18.addConstraint(Sketcher.Constraint("DistanceY", -1, 1, 0, 2, 343.688583))
pad18 = body18.newObject("PartDesign::Pad", "Pad017")
pad18.Profile = sketch18
pad18.Length = Q("57 in")
body19 = doc.addObject("PartDesign::Body", "Body018")

# Sketch on YZ plane
sketch19 = body19.newObject("Sketcher::SketchObject", "Sketch018")
sketch19.AttachmentSupport = (doc.getObject("YZ_Plane018"), [""])
sketch19.MapMode = "FlatFace"
add_polygon(sketch19, [(471.181836, 38.1), (471.181836, 0), (509.281836, 0), (509.281836, 38.1)])  # lines 0-3
sketch19.addConstraint(Sketcher.Constraint("Vertical", 0))
sketch19.addConstraint(Sketcher.Constraint("Horizontal", 1))
sketch19.addConstraint(Sketcher.Constraint("Vertical", 2))
sketch19.addConstraint(Sketcher.Constraint("Horizontal", 3))
sketch19.addConstraint(Sketcher.Constraint("PointOnObject", 0, 2, -1))
sketch19.addConstraint(Sketcher.Constraint("Equal", 3, 0))
sketch19.addConstraint(Sketcher.Constraint("DistanceX", 1, 1, 1, 2, Q("1.5 in")))
sketch19.addConstraint(Sketcher.Constraint("DistanceX", -1, 1, 0, 2, 471.181836))
pad19 = body19.newObject("PartDesign::Pad", "Pad018")
pad19.Profile = sketch19
pad19.Length = Q("26.5 in")
body20 = doc.addObject("PartDesign::Body", "Body019")

# Sketch on XZ plane
sketch20 = body20.newObject("Sketcher::SketchObject", "Sketch019")
sketch20.AttachmentSupport = (doc.getObject("XZ_Plane019"), [""])
sketch20.MapMode = "FlatFace"
add_polygon(sketch20, [(774.026231, 38.1), (774.026231, 0), (862.926231, 0), (862.926231, 38.1)])  # lines 0-3
sketch20.addConstraint(Sketcher.Constraint("Vertical", 0))
sketch20.addConstraint(Sketcher.Constraint("Horizontal", 1))
sketch20.addConstraint(Sketcher.Constraint("Vertical", 2))
sketch20.addConstraint(Sketcher.Constraint("Horizontal", 3))
sketch20.addConstraint(Sketcher.Constraint("PointOnObject", 0, 2, -1))
sketch20.addConstraint(Sketcher.Constraint("DistanceX", 1, 1, 1, 2, Q("3.5 in")))
sketch20.addConstraint(Sketcher.Constraint("DistanceY", 0, 2, 0, 1, Q("1.5 in")))
sketch20.addConstraint(Sketcher.Constraint("DistanceX", -1, 1, 0, 2, 774.026231))
pad20 = body20.newObject("PartDesign::Pad", "Pad019")
pad20.Profile = sketch20
pad20.Length = Q("26.125 in")
body21 = doc.addObject("PartDesign::Body", "Body020")

# Sketch on XZ plane
sketch21 = body21.newObject("Sketcher::SketchObject", "Sketch020")
sketch21.AttachmentSupport = (doc.getObject("XZ_Plane020"), [""])
sketch21.MapMode = "FlatFace"
add_polygon(sketch21, [(-1228.48423, 0), (-1059.150897, 0), (-3355.850302, 3352.8), (-3424.703037, 3352.8), (-3424.703037, 3206.115)])  # lines 0-4
sketch21.addConstraint(Sketcher.Constraint("Horizontal", 0))
sketch21.addConstraint(Sketcher.Constraint("Horizontal", 2))
sketch21.addConstraint(Sketcher.Constraint("Vertical", 3))
sketch21.addConstraint(Sketcher.Constraint("PointOnObject", 0, 2, -1))
sketch21.addConstraint(Sketcher.Constraint("Parallel", 1, 4))
sketch21.addConstraint(Sketcher.Constraint("Distance", 1, Q("160 in")))
sketch21.addConstraint(Sketcher.Constraint("Distance", 4, Q("153 in")))
sketch21.addConstraint(Sketcher.Constraint("DistanceY", -1, 1, 1, 2, Q("132 in")))
sketch21.addConstraint(Sketcher.Constraint("DistanceX", 1, 2, -1, 1, 3355.850302))
sketch21.addConstraint(Sketcher.Constraint("DistanceX", 0, 1, 0, 2, 169.333333))
pad21 = body21.newObject("PartDesign::Pad", "Pad020")
pad21.Profile = sketch21
pad21.Length = Q("1.5 in")
body22 = doc.addObject("PartDesign::Body", "Body021")

# Sketch on XY plane
sketch22 = body22.newObject("Sketcher::SketchObject", "Sketch021")
sketch22.AttachmentSupport = (doc.getObject("XY_Plane021"), [""])
sketch22.MapMode = "FlatFace"
add_polygon(sketch22, [(0, 236.086031), (0, 147.186031), (88.9, 147.186031), (88.9, 236.086031)])  # lines 0-3
sketch22.addConstraint(Sketcher.Constraint("Vertical", 0))
sketch22.addConstraint(Sketcher.Constraint("Horizontal", 1))
sketch22.addConstraint(Sketcher.Constraint("Vertical", 2))
sketch22.addConstraint(Sketcher.Constraint("Horizontal", 3))
sketch22.addConstraint(Sketcher.Constraint("PointOnObject", 0, 2, -2))
sketch22.addConstraint(Sketcher.Constraint("Equal", 3, 0))
sketch22.addConstraint(Sketcher.Constraint("DistanceX", 1, 1, 1, 2, Q("3.5 in")))
sketch22.addConstraint(Sketcher.Constraint("DistanceY", -1, 1, 0, 2, 147.186031))
pad22 = body22.newObject("PartDesign::Pad", "Pad021")
pad22.Profile = sketch22
pad22.Length = Q("18 in")
body23 = doc.addObject("PartDesign::Body", "Body022")

# Sketch on XZ plane
sketch23 = body23.newObject("Sketcher::SketchObject", "Sketch022")
sketch23.AttachmentSupport = (doc.getObject("XZ_Plane022"), [""])
sketch23.MapMode = "FlatFace"
add_polygon(sketch23, [(-760.640782, 38.1), (-760.640782, 0), (-671.740782, 0), (-671.740782, 38.1)])  # lines 0-3
sketch23.addConstraint(Sketcher.Constraint("Vertical", 0))
sketch23.addConstraint(Sketcher.Constraint("Horizontal", 1))
sketch23.addConstraint(Sketcher.Constraint("Vertical", 2))
sketch23.addConstraint(Sketcher.Constraint("Horizontal", 3))
sketch23.addConstraint(Sketcher.Constraint("PointOnObject", 0, 2, -1))
sketch23.addConstraint(Sketcher.Constraint("DistanceX", 1, 1, 1, 2, Q("3.5 in")))
sketch23.addConstraint(Sketcher.Constraint("DistanceY", 0, 2, 0, 1, Q("1.5 in")))
sketch23.addConstraint(Sketcher.Constraint("DistanceX", 0, 2, -1, 1, 760.640782))
pad23 = body23.newObject("PartDesign::Pad", "Pad022")
pad23.Profile = sketch23
pad23.Length = Q("18 in")
body24 = doc.addObject("PartDesign::Body", "Body023")

# Sketch on XZ plane
sketch24 = body24.newObject("Sketcher::SketchObject", "Sketch023")
sketch24.AttachmentSupport = (doc.getObject("XZ_Plane023"), [""])
sketch24.MapMode = "FlatFace"
add_polygon(sketch24, [(-1746.900376, 3110.51608), (-1639.1428, 3110.51608), (-3935.842205, 6463.31608), (-3943.119182, 6463.31608), (-3943.119182, 6316.63108)])  # lines 0-4
sketch24.addConstraint(Sketcher.Constraint("Horizontal", 0))
sketch24.addConstraint(Sketcher.Constraint("Horizontal", 2))
sketch24.addConstraint(Sketcher.Constraint("Vertical", 3))
sketch24.addConstraint(Sketcher.Constraint("Parallel", 1, 4))
sketch24.addConstraint(Sketcher.Constraint("Distance", 1, Q("160 in")))
sketch24.addConstraint(Sketcher.Constraint("Distance", 4, Q("153 in")))
sketch24.addConstraint(Sketcher.Constraint("DistanceY", 0, 2, 1, 2, Q("132 in")))
sketch24.addConstraint(Sketcher.Constraint("DistanceX", 0, 2, -1, 1, 1639.1428))
sketch24.addConstraint(Sketcher.Constraint("DistanceX", 0, 1, 0, 2, 107.757576))
sketch24.addConstraint(Sketcher.Constraint("DistanceY", -1, 1, 0, 2, 3110.51608))
pad24 = body24.newObject("PartDesign::Pad", "Pad023")
pad24.Profile = sketch24
pad24.Length = Q("1.5 in")

doc.recompute()
